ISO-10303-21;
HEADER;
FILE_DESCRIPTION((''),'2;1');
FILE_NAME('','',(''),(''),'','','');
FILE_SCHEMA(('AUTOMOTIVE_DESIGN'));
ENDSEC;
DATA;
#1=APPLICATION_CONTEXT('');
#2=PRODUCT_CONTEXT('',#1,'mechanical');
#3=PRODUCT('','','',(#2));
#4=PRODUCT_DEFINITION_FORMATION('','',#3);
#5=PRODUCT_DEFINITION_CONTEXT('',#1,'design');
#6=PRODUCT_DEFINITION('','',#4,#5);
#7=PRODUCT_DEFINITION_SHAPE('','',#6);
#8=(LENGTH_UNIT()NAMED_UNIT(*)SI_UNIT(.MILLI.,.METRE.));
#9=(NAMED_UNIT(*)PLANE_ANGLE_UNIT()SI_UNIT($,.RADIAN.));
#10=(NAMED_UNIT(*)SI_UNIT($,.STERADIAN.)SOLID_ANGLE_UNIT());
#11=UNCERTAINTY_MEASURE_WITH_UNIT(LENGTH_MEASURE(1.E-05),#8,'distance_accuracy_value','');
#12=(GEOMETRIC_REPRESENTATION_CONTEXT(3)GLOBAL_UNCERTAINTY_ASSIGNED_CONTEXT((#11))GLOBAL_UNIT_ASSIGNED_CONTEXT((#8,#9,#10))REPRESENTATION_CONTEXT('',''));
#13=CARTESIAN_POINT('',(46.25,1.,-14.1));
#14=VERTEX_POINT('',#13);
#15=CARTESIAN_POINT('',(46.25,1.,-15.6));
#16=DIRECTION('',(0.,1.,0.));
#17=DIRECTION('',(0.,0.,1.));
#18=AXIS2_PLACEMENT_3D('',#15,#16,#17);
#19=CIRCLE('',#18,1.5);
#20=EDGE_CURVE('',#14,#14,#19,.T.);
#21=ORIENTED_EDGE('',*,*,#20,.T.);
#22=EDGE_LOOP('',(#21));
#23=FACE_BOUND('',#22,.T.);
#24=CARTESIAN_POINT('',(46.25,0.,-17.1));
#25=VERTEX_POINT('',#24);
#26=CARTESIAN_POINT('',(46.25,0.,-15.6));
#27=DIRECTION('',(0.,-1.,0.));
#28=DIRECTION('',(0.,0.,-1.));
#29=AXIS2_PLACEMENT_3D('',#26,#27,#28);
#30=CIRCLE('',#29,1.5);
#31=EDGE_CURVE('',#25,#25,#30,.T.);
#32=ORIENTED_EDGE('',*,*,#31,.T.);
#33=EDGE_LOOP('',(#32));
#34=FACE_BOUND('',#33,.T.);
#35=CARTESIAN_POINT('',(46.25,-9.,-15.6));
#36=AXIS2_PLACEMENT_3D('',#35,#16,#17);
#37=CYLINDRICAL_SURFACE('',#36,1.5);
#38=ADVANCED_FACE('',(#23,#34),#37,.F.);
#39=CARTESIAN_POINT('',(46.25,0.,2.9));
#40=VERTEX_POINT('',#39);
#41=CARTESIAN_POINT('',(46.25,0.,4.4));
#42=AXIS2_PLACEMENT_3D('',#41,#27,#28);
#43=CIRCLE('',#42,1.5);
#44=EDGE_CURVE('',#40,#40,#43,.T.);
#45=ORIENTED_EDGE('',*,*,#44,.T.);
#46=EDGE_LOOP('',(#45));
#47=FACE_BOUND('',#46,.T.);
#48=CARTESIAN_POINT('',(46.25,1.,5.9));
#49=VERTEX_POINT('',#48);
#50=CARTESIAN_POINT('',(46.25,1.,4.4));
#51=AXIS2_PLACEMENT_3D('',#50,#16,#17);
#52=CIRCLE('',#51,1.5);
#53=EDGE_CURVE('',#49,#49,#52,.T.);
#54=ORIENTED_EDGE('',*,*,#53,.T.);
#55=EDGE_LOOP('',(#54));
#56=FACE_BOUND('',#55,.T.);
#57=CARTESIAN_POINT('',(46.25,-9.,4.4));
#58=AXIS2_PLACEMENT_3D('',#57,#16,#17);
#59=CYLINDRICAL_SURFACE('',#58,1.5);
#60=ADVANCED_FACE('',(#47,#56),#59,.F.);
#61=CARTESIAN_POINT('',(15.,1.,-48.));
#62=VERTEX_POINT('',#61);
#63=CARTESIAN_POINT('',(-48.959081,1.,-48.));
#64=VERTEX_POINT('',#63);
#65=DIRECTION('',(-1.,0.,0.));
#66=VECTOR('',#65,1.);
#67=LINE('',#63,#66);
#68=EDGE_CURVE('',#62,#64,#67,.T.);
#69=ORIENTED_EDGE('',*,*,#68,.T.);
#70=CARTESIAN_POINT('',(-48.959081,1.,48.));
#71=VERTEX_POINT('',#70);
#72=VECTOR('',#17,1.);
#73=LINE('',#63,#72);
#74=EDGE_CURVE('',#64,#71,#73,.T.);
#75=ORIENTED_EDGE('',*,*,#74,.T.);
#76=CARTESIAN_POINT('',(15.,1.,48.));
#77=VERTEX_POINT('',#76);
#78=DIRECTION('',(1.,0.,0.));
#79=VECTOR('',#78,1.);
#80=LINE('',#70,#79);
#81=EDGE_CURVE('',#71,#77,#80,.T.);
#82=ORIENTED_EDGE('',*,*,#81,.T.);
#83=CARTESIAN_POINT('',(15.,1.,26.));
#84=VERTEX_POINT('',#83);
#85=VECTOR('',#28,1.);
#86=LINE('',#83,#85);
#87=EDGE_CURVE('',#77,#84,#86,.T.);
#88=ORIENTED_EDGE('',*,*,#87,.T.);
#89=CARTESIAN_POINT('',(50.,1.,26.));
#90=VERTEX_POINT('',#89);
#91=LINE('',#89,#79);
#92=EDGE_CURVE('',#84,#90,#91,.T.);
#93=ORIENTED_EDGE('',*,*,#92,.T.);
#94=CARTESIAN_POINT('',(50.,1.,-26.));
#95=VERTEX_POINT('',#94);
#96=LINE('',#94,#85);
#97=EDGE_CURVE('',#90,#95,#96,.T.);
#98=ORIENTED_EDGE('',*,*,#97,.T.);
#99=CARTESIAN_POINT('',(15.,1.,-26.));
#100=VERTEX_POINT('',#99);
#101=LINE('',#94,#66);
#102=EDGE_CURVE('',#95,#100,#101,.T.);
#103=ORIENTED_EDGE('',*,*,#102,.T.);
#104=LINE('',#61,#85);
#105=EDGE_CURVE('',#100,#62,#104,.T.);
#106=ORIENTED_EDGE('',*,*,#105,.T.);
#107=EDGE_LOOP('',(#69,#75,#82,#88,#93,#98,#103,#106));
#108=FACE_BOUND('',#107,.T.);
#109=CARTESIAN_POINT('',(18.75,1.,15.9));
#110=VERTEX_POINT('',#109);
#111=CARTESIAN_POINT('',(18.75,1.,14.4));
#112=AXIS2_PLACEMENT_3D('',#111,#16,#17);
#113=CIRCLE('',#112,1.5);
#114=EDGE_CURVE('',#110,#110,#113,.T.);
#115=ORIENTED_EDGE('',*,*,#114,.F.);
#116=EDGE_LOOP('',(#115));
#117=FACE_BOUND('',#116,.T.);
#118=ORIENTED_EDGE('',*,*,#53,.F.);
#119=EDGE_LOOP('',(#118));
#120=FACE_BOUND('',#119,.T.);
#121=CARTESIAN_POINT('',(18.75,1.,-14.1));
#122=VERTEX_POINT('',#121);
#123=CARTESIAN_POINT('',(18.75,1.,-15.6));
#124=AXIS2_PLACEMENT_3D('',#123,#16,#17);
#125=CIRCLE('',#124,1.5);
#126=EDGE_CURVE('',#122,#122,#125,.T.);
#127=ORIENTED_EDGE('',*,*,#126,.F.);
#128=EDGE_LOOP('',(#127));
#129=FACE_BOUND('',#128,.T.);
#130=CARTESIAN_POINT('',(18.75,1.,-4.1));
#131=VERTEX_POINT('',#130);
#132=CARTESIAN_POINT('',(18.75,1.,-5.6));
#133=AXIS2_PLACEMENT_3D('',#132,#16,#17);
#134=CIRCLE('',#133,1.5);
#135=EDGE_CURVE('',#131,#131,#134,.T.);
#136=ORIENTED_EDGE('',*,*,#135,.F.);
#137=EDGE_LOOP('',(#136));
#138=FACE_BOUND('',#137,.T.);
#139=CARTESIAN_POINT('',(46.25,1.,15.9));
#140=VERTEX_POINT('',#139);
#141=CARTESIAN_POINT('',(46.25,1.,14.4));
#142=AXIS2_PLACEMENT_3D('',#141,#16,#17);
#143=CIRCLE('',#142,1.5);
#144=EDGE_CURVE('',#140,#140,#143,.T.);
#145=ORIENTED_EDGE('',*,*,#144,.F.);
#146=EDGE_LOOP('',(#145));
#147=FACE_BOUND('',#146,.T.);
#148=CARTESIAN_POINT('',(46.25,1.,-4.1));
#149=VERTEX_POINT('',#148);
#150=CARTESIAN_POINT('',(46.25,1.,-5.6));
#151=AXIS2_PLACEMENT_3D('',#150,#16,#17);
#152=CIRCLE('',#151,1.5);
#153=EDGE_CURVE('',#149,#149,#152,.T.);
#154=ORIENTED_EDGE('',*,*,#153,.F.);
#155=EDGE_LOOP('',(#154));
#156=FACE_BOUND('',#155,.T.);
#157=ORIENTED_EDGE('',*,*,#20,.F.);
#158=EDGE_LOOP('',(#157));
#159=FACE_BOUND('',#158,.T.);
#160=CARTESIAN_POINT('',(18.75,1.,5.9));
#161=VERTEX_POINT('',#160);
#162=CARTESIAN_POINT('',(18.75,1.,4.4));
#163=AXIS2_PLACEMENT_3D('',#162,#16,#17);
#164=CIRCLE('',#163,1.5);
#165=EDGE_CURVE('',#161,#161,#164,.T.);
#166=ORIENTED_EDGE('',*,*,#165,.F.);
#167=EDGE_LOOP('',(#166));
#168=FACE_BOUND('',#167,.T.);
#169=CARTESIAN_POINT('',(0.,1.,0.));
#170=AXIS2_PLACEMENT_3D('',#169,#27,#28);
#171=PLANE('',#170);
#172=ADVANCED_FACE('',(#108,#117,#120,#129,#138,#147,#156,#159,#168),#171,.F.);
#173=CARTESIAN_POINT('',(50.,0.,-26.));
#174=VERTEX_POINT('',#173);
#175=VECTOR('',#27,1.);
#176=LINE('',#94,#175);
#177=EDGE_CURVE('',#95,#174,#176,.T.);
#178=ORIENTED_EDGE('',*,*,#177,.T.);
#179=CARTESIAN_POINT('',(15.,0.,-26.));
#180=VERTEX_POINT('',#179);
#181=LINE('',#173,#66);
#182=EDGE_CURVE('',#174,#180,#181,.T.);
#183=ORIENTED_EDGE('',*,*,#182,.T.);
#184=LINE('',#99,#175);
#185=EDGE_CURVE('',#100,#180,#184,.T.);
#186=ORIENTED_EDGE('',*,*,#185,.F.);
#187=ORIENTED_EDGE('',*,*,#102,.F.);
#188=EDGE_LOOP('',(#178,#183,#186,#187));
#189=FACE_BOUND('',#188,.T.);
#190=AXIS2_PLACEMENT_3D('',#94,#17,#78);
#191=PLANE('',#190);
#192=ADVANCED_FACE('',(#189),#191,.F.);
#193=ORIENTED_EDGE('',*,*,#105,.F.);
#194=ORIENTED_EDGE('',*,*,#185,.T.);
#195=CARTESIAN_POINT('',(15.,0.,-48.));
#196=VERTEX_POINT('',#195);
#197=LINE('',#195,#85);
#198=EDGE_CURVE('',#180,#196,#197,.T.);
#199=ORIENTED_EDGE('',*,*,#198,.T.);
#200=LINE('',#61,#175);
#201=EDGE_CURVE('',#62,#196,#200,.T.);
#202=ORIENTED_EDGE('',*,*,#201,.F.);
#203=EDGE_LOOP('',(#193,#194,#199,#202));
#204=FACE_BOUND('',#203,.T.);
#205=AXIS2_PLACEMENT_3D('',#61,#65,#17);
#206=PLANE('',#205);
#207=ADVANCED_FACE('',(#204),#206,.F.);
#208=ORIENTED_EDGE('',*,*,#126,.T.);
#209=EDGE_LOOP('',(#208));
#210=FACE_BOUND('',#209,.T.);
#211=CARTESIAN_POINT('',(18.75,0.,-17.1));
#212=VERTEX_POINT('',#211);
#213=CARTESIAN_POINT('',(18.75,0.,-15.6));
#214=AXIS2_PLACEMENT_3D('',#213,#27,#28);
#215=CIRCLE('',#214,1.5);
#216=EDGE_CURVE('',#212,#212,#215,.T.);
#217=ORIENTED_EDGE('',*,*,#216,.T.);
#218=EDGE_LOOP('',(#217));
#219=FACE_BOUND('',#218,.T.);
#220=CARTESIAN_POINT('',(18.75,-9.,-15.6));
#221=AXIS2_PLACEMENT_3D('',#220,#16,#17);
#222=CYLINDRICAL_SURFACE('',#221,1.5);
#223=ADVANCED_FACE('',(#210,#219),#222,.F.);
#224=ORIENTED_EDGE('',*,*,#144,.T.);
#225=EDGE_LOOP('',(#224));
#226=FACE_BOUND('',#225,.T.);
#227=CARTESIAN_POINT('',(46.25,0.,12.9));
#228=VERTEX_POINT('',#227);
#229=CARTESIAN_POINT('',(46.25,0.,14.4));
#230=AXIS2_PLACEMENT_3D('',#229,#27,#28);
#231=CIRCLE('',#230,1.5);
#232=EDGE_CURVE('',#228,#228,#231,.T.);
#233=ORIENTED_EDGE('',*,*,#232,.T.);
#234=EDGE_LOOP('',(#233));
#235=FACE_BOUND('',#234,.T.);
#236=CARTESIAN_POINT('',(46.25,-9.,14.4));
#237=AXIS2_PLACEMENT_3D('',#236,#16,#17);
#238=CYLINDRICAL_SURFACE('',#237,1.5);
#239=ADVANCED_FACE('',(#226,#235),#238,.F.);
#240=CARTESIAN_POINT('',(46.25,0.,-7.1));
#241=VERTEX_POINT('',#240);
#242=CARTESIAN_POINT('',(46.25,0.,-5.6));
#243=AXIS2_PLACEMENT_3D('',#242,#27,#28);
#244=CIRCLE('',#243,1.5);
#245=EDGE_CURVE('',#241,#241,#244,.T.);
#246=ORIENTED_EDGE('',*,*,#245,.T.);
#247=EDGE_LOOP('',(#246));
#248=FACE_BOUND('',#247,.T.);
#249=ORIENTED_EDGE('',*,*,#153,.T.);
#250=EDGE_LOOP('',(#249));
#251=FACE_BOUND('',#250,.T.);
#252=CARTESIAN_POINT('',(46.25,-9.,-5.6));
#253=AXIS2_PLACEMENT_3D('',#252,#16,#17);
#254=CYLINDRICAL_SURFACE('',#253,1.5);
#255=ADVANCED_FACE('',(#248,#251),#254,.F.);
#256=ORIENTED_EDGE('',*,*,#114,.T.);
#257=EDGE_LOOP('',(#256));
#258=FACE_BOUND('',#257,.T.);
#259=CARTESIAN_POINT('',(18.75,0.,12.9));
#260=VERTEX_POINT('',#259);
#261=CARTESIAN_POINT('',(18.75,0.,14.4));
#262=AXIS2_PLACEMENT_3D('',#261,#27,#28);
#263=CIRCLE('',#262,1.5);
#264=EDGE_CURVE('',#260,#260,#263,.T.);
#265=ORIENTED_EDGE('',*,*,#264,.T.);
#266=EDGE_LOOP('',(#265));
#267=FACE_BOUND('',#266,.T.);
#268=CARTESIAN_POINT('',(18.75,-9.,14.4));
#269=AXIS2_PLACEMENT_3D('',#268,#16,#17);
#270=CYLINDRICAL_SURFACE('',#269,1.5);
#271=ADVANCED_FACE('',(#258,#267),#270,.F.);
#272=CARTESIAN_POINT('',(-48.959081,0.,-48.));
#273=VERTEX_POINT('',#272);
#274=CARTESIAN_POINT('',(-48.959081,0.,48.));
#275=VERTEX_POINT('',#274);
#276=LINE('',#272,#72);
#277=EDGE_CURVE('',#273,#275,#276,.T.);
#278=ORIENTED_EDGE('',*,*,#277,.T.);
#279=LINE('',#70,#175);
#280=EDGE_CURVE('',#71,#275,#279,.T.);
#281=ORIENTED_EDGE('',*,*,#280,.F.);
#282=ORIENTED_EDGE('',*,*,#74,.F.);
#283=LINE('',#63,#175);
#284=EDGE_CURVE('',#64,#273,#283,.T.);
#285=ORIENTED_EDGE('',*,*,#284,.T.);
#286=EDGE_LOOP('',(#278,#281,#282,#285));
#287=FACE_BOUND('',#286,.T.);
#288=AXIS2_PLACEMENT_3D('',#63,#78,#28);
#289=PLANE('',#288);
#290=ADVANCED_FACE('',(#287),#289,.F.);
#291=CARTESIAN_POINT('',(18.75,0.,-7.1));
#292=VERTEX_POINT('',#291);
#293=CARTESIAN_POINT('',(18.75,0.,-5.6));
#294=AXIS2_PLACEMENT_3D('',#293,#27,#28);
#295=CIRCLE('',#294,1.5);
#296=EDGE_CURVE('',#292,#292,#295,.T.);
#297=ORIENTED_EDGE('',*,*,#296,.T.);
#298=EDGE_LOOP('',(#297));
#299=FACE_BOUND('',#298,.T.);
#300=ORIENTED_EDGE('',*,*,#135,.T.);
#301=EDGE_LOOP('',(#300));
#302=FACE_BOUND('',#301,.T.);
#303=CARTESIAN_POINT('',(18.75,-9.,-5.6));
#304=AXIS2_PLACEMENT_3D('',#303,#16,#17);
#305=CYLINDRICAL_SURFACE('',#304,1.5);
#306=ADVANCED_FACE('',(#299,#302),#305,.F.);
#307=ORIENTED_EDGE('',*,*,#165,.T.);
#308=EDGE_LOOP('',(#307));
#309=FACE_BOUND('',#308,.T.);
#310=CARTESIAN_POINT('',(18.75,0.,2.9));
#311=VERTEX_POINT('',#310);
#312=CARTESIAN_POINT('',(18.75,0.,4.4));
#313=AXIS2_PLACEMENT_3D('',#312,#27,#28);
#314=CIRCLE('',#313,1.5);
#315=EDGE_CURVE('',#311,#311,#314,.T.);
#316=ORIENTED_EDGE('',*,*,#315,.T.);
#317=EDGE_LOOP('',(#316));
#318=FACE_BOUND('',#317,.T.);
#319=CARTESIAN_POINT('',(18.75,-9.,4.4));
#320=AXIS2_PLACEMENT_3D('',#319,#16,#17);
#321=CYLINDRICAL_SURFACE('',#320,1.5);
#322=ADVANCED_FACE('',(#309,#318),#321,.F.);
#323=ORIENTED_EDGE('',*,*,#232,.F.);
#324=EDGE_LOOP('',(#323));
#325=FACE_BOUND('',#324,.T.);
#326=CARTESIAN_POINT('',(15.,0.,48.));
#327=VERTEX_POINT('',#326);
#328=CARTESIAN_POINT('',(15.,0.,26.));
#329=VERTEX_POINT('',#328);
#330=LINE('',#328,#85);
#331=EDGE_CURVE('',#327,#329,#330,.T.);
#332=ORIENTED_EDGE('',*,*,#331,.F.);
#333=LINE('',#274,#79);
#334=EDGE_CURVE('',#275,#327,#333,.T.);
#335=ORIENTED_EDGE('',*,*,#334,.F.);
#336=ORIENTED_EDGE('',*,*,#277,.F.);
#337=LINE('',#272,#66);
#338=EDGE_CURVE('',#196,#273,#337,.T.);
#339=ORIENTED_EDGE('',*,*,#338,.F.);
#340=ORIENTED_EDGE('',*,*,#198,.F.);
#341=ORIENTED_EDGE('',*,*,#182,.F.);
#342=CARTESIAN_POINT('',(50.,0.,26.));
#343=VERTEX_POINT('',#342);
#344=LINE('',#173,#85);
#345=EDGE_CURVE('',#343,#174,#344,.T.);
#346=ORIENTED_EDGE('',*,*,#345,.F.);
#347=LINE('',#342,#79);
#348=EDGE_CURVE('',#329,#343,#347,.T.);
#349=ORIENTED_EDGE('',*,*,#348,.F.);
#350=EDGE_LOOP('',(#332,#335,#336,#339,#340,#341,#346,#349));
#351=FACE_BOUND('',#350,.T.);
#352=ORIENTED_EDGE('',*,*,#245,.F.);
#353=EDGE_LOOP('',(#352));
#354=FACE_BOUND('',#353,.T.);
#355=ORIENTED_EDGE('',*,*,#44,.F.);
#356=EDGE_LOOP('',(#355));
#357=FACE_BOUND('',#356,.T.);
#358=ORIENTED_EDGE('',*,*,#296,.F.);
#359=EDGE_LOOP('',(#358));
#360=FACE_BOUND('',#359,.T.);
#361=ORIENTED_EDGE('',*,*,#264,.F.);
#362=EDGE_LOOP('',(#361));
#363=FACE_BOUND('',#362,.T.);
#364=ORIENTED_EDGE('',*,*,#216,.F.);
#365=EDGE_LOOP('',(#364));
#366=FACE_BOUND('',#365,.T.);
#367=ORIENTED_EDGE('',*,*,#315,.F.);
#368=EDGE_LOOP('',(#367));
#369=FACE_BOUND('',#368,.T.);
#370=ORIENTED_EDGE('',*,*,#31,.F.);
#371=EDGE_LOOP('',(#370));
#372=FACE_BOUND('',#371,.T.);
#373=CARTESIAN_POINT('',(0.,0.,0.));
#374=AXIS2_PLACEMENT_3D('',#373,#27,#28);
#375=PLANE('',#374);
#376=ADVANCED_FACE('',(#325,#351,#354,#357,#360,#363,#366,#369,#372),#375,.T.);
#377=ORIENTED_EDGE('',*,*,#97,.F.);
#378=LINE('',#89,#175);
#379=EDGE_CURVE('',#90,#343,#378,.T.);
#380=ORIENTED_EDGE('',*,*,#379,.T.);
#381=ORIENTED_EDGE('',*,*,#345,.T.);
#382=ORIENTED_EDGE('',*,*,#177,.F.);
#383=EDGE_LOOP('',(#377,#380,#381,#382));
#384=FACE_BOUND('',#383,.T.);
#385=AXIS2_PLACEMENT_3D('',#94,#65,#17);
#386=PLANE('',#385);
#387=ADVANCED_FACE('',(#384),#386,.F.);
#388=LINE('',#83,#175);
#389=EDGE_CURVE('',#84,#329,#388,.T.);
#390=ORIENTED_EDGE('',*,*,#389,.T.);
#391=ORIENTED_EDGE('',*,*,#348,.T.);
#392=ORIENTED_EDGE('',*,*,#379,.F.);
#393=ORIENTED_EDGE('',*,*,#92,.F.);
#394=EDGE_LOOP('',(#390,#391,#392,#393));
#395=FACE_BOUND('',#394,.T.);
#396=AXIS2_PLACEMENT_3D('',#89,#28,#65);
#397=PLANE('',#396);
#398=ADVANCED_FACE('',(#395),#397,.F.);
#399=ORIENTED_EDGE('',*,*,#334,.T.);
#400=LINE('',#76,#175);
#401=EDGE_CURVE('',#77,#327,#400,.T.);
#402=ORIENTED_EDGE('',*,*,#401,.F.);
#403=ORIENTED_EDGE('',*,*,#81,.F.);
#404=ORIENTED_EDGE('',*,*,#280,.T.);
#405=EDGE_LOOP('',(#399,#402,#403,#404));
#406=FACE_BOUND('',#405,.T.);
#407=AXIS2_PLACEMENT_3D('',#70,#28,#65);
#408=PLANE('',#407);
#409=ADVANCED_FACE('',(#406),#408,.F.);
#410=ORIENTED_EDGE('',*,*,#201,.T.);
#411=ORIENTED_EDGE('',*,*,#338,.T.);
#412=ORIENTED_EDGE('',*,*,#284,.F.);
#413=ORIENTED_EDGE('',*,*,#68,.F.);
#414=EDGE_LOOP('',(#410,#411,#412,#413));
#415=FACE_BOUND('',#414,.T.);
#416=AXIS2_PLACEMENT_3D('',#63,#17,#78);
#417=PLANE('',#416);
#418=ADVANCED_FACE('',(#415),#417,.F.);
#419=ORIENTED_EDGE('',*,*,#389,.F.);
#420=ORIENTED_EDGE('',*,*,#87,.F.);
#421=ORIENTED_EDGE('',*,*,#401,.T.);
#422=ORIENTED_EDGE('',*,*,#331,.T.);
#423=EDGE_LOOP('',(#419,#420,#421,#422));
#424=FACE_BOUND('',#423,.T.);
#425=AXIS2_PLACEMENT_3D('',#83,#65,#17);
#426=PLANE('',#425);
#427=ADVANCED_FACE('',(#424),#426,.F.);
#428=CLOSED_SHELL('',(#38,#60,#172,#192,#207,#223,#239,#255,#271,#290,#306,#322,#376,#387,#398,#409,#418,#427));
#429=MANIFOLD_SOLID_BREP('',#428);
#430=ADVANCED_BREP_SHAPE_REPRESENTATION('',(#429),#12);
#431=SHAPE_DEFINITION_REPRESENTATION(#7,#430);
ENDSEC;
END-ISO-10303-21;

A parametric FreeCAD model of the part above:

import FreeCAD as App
import Part
import Sketcher

doc = App.newDocument("Part")
body = doc.addObject("PartDesign::Body", "Body")

# Sketch on XZ plane
sketch1 = body.newObject("Sketcher::SketchObject", "Sketch")
sketch1.AttachmentSupport = (doc.getObject("XZ_Plane"), [""])
sketch1.MapMode = "FlatFace"
sketch1.addGeometry([
    Part.LineSegment(App.Vector(15, 48, 0), App.Vector(15, 26, 0)),  # 0
    Part.LineSegment(App.Vector(15, 26, 0), App.Vector(50, 26, 0)),  # 1
    Part.LineSegment(App.Vector(50, 26, 0), App.Vector(50, -26, 0)),  # 2
    Part.LineSegment(App.Vector(50, -26, 0), App.Vector(15, -26, 0)),  # 3
    Part.LineSegment(App.Vector(15, -26, 0), App.Vector(15, -48, 0)),  # 4
    Part.LineSegment(App.Vector(15, -48, 0), App.Vector(-49, -48, 0)),  # 5
    Part.LineSegment(App.Vector(-49, -48, 0), App.Vector(-49, 48, 0)),  # 6
    Part.LineSegment(App.Vector(-49, 48, 0), App.Vector(15, 48, 0)),  # 7
], False)
sketch1.addConstraint([
    Sketcher.Constraint("Coincident", 0, 2, 1, 1),
    Sketcher.Constraint("Coincident", 1, 2, 2, 1),
    Sketcher.Constraint("Coincident", 2, 2, 3, 1),
    Sketcher.Constraint("Coincident", 3, 2, 4, 1),
    Sketcher.Constraint("Coincident", 4, 2, 5, 1),
    Sketcher.Constraint("Coincident", 5, 2, 6, 1),
    Sketcher.Constraint("Coincident", 6, 2, 7, 1),
    Sketcher.Constraint("Coincident", 7, 2, 0, 1),
    Sketcher.Constraint("Vertical", 0),
    Sketcher.Constraint("Horizontal", 1),
    Sketcher.Constraint("Vertical", 2),
    Sketcher.Constraint("Horizontal", 3),
    Sketcher.Constraint("Vertical", 4),
    Sketcher.Constraint("Horizontal", 5),
    Sketcher.Constraint("Vertical", 6),
    Sketcher.Constraint("Horizontal", 7),
    Sketcher.Constraint("Symmetric", 0, 2, 3, 2, -1),
    Sketcher.Constraint("Equal", 0, 4),
    Sketcher.Constraint("DistanceX", 1, 1, 1, 2, 35.0),
    Sketcher.Constraint("DistanceY", 0, 2, 0, 1, 22.0),
    Sketcher.Constraint("DistanceY", 2, 2, 2, 1, 52.0),
    Sketcher.Constraint("DistanceX", -1, 1, 0, 2, 15.0),
    Sketcher.Constraint("DistanceX", 5, 2, 5, 1, 63.959081),
])
pad1 = body.newObject("PartDesign::Pad", "Pad")
pad1.Profile = sketch1
pad1.Length = 1
pad1.Reversed = True

# Sketch on XZ plane
sketch2 = body.newObject("Sketcher::SketchObject", "Sketch001")
sketch2.AttachmentSupport = (doc.getObject("XZ_Plane"), [""])
sketch2.MapMode = "FlatFace"
sketch2.AttachmentOffset = App.Placement(App.Vector(0, 0, -1), App.Rotation())
sketch2.addGeometry([
    Part.Circle(App.Vector(46.2, 14.4, 0), App.Vector(0, 0, 1), 1.5),  # 0
    Part.Circle(App.Vector(18.8, 14.4, 0), App.Vector(0, 0, 1), 1.5),  # 1
    Part.Circle(App.Vector(18.8, 4.4, 0), App.Vector(0, 0, 1), 1.5),  # 2
    Part.Circle(App.Vector(46.2, 4.4, 0), App.Vector(0, 0, 1), 1.5),  # 3
    Part.Circle(App.Vector(18.8, -5.6, 0), App.Vector(0, 0, 1), 1.5),  # 4
    Part.Circle(App.Vector(46.2, -5.6, 0), App.Vector(0, 0, 1), 1.5),  # 5
    Part.Circle(App.Vector(18.8, -15.6, 0), App.Vector(0, 0, 1), 1.5),  # 6
    Part.Circle(App.Vector(46.2, -15.6, 0), App.Vector(0, 0, 1), 1.5),  # 7
], False)
sketch2.addConstraint([
    Sketcher.Constraint("Equal", 0, 1),
    Sketcher.Constraint("Equal", 1, 2),
    Sketcher.Constraint("Equal", 2, 3),
    Sketcher.Constraint("Equal", 3, 4),
    Sketcher.Constraint("Equal", 4, 5),
    Sketcher.Constraint("Equal", 5, 6),
    Sketcher.Constraint("Equal", 6, 7),
    Sketcher.Constraint("Horizontal", 0, 3, 1, 3),
    Sketcher.Constraint("Horizontal", 2, 3, 3, 3),
    Sketcher.Constraint("Horizontal", 4, 3, 5, 3),
    Sketcher.Constraint("Horizontal", 6, 3, 7, 3),
    Sketcher.Constraint("Vertical", 1, 3, 2, 3),
    Sketcher.Constraint("Vertical", 0, 3, 3, 3),
    Sketcher.Constraint("Vertical", 2, 3, 4, 3),
    Sketcher.Constraint("Vertical", 3, 3, 5, 3),
    Sketcher.Constraint("Vertical", 4, 3, 6, 3),
    Sketcher.Constraint("Vertical", 5, 3, 7, 3),
    Sketcher.Constraint("Diameter", 0, 3.0),
    Sketcher.Constraint("DistanceY", 2, 3, 1, 3, 10.0),
    Sketcher.Constraint("DistanceY", 4, 3, 2, 3, 10.0),
    Sketcher.Constraint("DistanceY", 6, 3, 4, 3, 10.0),
    Sketcher.Constraint("DistanceY", -1, 1, 0, 3, 14.4),
    Sketcher.Constraint("DistanceX", 1, 3, 0, 3, 27.5),
    Sketcher.Constraint("DistanceX", -1, 1, 0, 3, 46.25),
])
pocket1 = body.newObject("PartDesign::Pocket", "Pocket")
pocket1.Profile = sketch2
pocket1.Length = 10
pocket1.Reversed = True

doc.recompute()
